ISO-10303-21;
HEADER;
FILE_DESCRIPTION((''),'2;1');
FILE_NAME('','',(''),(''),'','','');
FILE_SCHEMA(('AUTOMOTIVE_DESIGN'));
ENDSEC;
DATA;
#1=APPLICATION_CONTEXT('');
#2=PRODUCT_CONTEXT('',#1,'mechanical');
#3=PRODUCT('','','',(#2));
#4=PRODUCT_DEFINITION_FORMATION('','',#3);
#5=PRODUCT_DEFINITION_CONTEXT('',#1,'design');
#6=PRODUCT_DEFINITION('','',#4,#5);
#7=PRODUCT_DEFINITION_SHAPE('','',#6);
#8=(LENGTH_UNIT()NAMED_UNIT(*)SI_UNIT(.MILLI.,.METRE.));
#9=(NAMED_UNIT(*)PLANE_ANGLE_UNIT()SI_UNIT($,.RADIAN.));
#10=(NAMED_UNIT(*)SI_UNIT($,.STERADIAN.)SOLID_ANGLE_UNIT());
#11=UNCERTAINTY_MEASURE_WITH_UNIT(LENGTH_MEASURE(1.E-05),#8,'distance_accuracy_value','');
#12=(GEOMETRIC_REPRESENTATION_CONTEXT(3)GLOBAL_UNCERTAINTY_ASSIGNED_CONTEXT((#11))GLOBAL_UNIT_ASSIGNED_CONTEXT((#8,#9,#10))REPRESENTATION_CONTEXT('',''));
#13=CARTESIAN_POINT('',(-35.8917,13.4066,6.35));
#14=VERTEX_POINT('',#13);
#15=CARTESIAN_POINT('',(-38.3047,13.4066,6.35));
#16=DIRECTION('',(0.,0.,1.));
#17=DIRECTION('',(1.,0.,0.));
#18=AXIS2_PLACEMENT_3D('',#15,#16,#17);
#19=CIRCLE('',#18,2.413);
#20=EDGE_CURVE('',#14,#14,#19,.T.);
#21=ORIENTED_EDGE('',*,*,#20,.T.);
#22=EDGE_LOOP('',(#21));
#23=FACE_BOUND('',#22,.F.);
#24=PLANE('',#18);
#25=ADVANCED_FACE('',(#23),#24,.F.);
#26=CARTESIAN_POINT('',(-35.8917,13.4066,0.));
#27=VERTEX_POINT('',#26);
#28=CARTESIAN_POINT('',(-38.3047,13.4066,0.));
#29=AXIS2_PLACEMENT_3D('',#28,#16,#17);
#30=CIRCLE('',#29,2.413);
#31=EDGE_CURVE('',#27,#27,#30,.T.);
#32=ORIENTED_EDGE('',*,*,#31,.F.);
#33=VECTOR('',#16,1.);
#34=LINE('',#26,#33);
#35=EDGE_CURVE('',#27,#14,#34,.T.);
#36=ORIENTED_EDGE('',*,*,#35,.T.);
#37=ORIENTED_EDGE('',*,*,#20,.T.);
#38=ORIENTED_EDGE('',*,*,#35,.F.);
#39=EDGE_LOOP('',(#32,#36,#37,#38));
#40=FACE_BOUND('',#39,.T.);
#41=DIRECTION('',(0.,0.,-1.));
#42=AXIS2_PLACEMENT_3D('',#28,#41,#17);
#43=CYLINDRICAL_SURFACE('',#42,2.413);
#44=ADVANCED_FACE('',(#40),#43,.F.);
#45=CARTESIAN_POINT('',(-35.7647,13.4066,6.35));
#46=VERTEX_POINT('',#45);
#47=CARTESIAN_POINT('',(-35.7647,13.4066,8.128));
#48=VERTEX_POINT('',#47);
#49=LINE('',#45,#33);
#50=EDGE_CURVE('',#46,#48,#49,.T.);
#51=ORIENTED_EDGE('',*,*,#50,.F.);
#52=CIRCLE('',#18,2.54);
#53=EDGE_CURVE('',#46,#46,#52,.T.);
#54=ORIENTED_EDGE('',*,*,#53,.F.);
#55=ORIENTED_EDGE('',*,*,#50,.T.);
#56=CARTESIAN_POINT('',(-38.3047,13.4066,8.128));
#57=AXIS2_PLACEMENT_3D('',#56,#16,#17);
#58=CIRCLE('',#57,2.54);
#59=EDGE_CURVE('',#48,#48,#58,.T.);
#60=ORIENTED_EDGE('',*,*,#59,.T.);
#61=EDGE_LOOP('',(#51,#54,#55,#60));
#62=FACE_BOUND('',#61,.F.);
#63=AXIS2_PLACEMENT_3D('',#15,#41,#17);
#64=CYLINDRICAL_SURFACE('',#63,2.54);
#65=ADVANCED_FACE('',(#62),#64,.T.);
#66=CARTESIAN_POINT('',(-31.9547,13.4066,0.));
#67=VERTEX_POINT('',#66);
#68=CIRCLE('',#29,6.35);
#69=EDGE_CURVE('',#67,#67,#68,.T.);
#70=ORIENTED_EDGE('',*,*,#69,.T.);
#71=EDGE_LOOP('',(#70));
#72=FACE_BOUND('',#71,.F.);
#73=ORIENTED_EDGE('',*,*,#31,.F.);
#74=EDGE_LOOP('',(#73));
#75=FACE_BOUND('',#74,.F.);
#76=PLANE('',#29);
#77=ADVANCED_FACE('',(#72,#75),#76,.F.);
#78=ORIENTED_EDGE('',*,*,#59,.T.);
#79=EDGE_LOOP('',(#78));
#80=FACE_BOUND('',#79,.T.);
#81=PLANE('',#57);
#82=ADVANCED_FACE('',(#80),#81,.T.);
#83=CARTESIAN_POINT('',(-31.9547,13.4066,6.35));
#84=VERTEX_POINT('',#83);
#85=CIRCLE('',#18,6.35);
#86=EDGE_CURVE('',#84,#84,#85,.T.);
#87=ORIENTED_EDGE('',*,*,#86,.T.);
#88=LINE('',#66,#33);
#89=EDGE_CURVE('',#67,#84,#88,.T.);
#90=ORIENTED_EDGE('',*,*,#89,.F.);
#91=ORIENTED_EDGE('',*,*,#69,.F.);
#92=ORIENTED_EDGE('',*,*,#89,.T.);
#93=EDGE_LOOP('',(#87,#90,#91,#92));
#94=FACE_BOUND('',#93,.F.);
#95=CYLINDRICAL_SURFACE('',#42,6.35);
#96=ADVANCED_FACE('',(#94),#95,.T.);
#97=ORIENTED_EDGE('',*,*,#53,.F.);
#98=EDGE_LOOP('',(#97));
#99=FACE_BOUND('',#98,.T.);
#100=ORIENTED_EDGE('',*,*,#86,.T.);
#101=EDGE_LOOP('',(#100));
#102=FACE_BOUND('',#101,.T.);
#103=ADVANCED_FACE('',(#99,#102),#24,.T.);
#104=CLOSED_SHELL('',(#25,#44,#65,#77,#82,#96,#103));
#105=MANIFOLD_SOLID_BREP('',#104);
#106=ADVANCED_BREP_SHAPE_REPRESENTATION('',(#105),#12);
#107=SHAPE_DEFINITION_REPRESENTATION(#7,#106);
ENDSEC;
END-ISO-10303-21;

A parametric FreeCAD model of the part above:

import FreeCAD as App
import Part
import Sketcher
from FreeCAD import Vector
Q = App.Units.Quantity

doc = App.newDocument("Part")
body = doc.addObject("PartDesign::Body", "Body")

sketch1 = body.newObject("Sketcher::SketchObject", "Sketch")
sketch1.AttachmentSupport = (doc.getObject("XY_Plane"), [""])
sketch1.MapMode = "FlatFace"
sketch1.addGeometry([
    Part.Circle(Vector(-38.3, 13.4, 0), Vector(0, 0, 1), 6.3),
    Part.Circle(Vector(-38.3, 13.4, 0), Vector(0, 0, 1), 2.4),
], False)
sketch1.addConstraint([
    Sketcher.Constraint("Coincident", 1, 3, 0, 3),
    Sketcher.Constraint("Diameter", 0, Q("0.5 in")),
    Sketcher.Constraint("Diameter", 1, Q("0.19 in")),
    Sketcher.Constraint("DistanceX", 0, 3, -1, 1, Q("38.3047 mm")),
    Sketcher.Constraint("DistanceY", -1, 1, 0, 3, Q("13.4066 mm")),
])
pad1 = body.newObject("PartDesign::Pad", "Pad")
pad1.Profile = sketch1
pad1.Length = Q("0.25 in")

sketch2 = body.newObject("Sketcher::SketchObject", "Sketch001")
sketch2.AttachmentSupport = (doc.getObject("XY_Plane"), [""])
sketch2.MapMode = "FlatFace"
sketch2.AttachmentOffset = App.Placement(Vector(0, 0, 0.25 * 25.4), App.Rotation())
sketch2.addGeometry(Part.Circle(Vector(-38.3, 13.4, 0), Vector(0, 0, 1), 2.5), False)
sketch2.addConstraint([
    Sketcher.Constraint("Diameter", 0, Q("0.2 in")),
    Sketcher.Constraint("DistanceX", 0, 3, -1, 1, Q("38.3047 mm")),
    Sketcher.Constraint("DistanceY", -1, 1, 0, 3, Q("13.4066 mm")),
])
pad2 = body.newObject("PartDesign::Pad", "Pad001")
pad2.Profile = sketch2
pad2.Length = Q("0.07 in")

doc.recompute()
